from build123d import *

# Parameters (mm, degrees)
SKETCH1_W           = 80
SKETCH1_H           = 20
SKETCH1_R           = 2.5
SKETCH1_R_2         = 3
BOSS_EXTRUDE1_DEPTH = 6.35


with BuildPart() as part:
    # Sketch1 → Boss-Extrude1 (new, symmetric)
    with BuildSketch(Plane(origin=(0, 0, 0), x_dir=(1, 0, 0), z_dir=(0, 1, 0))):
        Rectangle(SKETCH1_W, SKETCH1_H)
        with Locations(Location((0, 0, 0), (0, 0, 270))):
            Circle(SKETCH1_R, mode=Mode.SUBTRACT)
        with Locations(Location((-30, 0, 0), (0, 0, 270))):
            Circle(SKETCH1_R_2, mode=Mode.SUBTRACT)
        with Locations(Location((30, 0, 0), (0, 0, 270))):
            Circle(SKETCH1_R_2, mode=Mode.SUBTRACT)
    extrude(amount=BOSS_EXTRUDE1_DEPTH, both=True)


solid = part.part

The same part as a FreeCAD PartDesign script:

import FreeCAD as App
import Part
import Sketcher
Q = App.Units.Quantity

doc = App.newDocument("Part")
body = doc.addObject("PartDesign::Body", "Body")

sketch1 = doc.addObject("Sketcher::SketchObject", "Sketch")
body.addObject(sketch1)
sketch1.AttachmentSupport = (doc.XZ_Plane, [""])
sketch1.MapMode = "FlatFace"
sketch1.addGeometry(Part.LineSegment(App.Vector(-40, -10, 0), App.Vector(-40, 10, 0)), False)
sketch1.addGeometry(Part.LineSegment(App.Vector(-40, 10, 0), App.Vector(40, 10, 0)), False)
sketch1.addGeometry(Part.LineSegment(App.Vector(40, 10, 0), App.Vector(40, -10, 0)), False)
sketch1.addGeometry(Part.LineSegment(App.Vector(40, -10, 0), App.Vector(-40, -10, 0)), False)
sketch1.addGeometry(Part.Circle(App.Vector(-30, 0, 0), App.Vector(0, 0, 1), 3), False)
sketch1.addGeometry(Part.Circle(App.Vector(0, 0, 0), App.Vector(0, 0, 1), 2.5), False)
sketch1.addGeometry(Part.Circle(App.Vector(30, 0, 0), App.Vector(0, 0, 1), 3), False)
sketch1.addConstraint(Sketcher.Constraint("Coincident", 0, 2, 1, 1))
sketch1.addConstraint(Sketcher.Constraint("Coincident", 1, 2, 2, 1))
sketch1.addConstraint(Sketcher.Constraint("Coincident", 2, 2, 3, 1))
sketch1.addConstraint(Sketcher.Constraint("Coincident", 3, 2, 0, 1))
sketch1.addConstraint(Sketcher.Constraint("Vertical", 0))
sketch1.addConstraint(Sketcher.Constraint("Horizontal", 1))
sketch1.addConstraint(Sketcher.Constraint("Vertical", 2))
sketch1.addConstraint(Sketcher.Constraint("Horizontal", 3))
sketch1.addConstraint(Sketcher.Constraint("Coincident", 5, 3, -1, 1))
sketch1.addConstraint(Sketcher.Constraint("Equal", 4, 6))
sketch1.addConstraint(Sketcher.Constraint("Symmetric", 4, 3, 6, 3, -1, 1))
sketch1.addConstraint(Sketcher.Constraint("Symmetric", 0, 2, 2, 2, -1, 1))
sketch1.addConstraint(Sketcher.Constraint("PointOnObject", 4, 3, -1))
sketch1.addConstraint(Sketcher.Constraint("Diameter", 4, Q("6 mm")))
sketch1.addConstraint(Sketcher.Constraint("Diameter", 5, Q("5 mm")))
sketch1.addConstraint(Sketcher.Constraint("DistanceX", 1, 1, 1, 2, Q("80 mm")))
sketch1.addConstraint(Sketcher.Constraint("DistanceY", 0, 1, 0, 2, Q("20 mm")))
sketch1.addConstraint(Sketcher.Constraint("DistanceX", 4, 3, -1, 1, Q("30 mm")))
pad1 = doc.addObject("PartDesign::Pad", "Pad")
body.addObject(pad1)
pad1.Profile = sketch1
pad1.Length = 12.7
pad1.Midplane = True

doc.recompute()
